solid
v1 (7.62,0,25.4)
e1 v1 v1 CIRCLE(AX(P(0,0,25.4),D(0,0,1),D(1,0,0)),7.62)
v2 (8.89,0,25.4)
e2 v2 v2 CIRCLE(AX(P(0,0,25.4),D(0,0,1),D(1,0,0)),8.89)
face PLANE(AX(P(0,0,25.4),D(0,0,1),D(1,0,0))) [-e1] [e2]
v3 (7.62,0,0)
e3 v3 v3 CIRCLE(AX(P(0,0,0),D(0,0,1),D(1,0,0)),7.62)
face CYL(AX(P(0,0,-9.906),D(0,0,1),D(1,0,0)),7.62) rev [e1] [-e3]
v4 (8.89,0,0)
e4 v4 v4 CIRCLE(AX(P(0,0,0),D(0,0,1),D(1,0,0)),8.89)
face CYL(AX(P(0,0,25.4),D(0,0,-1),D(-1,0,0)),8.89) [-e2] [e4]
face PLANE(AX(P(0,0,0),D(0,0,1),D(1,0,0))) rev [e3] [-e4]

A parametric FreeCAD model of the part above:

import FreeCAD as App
import Part
import Sketcher

V = App.Vector
Q = App.Units.Quantity

doc = App.newDocument("Part")
body = doc.addObject("PartDesign::Body", "Body")

# Sketch on XY plane
sketch1 = doc.addObject("Sketcher::SketchObject", "Sketch")
body.addObject(sketch1)
sketch1.AttachmentSupport = (doc.XY_Plane, [""])
sketch1.MapMode = "FlatFace"
sketch1.addGeometry(Part.Circle(V(0, 0, 0), V(0, 0, 1), 8.89), False)
sketch1.addConstraint([
    Sketcher.Constraint("Coincident", 0, 3, -1, 1),
    Sketcher.Constraint("Diameter", 0, Q("0.7 in")),
])
pad1 = doc.addObject("PartDesign::Pad", "Pad")
body.addObject(pad1)
pad1.Profile = sketch1
pad1.Length = Q("1 in")

# Sketch on XY plane
sketch2 = doc.addObject("Sketcher::SketchObject", "Sketch001")
body.addObject(sketch2)
sketch2.AttachmentSupport = (doc.XY_Plane, [""])
sketch2.MapMode = "FlatFace"
sketch2.AttachmentOffset = App.Placement(V(0, 0, 1 * 25.4), App.Rotation())
sketch2.addGeometry(Part.Circle(V(0, 0, 0), V(0, 0, 1), 7.62), False)
sketch2.addConstraint([
    Sketcher.Constraint("Coincident", 0, 3, -1, 1),
    Sketcher.Constraint("Diameter", 0, Q("0.6 in")),
])
pocket1 = doc.addObject("PartDesign::Pocket", "Pocket")
body.addObject(pocket1)
pocket1.Profile = sketch2
pocket1.Length = Q("1.39 in")

doc.recompute()
